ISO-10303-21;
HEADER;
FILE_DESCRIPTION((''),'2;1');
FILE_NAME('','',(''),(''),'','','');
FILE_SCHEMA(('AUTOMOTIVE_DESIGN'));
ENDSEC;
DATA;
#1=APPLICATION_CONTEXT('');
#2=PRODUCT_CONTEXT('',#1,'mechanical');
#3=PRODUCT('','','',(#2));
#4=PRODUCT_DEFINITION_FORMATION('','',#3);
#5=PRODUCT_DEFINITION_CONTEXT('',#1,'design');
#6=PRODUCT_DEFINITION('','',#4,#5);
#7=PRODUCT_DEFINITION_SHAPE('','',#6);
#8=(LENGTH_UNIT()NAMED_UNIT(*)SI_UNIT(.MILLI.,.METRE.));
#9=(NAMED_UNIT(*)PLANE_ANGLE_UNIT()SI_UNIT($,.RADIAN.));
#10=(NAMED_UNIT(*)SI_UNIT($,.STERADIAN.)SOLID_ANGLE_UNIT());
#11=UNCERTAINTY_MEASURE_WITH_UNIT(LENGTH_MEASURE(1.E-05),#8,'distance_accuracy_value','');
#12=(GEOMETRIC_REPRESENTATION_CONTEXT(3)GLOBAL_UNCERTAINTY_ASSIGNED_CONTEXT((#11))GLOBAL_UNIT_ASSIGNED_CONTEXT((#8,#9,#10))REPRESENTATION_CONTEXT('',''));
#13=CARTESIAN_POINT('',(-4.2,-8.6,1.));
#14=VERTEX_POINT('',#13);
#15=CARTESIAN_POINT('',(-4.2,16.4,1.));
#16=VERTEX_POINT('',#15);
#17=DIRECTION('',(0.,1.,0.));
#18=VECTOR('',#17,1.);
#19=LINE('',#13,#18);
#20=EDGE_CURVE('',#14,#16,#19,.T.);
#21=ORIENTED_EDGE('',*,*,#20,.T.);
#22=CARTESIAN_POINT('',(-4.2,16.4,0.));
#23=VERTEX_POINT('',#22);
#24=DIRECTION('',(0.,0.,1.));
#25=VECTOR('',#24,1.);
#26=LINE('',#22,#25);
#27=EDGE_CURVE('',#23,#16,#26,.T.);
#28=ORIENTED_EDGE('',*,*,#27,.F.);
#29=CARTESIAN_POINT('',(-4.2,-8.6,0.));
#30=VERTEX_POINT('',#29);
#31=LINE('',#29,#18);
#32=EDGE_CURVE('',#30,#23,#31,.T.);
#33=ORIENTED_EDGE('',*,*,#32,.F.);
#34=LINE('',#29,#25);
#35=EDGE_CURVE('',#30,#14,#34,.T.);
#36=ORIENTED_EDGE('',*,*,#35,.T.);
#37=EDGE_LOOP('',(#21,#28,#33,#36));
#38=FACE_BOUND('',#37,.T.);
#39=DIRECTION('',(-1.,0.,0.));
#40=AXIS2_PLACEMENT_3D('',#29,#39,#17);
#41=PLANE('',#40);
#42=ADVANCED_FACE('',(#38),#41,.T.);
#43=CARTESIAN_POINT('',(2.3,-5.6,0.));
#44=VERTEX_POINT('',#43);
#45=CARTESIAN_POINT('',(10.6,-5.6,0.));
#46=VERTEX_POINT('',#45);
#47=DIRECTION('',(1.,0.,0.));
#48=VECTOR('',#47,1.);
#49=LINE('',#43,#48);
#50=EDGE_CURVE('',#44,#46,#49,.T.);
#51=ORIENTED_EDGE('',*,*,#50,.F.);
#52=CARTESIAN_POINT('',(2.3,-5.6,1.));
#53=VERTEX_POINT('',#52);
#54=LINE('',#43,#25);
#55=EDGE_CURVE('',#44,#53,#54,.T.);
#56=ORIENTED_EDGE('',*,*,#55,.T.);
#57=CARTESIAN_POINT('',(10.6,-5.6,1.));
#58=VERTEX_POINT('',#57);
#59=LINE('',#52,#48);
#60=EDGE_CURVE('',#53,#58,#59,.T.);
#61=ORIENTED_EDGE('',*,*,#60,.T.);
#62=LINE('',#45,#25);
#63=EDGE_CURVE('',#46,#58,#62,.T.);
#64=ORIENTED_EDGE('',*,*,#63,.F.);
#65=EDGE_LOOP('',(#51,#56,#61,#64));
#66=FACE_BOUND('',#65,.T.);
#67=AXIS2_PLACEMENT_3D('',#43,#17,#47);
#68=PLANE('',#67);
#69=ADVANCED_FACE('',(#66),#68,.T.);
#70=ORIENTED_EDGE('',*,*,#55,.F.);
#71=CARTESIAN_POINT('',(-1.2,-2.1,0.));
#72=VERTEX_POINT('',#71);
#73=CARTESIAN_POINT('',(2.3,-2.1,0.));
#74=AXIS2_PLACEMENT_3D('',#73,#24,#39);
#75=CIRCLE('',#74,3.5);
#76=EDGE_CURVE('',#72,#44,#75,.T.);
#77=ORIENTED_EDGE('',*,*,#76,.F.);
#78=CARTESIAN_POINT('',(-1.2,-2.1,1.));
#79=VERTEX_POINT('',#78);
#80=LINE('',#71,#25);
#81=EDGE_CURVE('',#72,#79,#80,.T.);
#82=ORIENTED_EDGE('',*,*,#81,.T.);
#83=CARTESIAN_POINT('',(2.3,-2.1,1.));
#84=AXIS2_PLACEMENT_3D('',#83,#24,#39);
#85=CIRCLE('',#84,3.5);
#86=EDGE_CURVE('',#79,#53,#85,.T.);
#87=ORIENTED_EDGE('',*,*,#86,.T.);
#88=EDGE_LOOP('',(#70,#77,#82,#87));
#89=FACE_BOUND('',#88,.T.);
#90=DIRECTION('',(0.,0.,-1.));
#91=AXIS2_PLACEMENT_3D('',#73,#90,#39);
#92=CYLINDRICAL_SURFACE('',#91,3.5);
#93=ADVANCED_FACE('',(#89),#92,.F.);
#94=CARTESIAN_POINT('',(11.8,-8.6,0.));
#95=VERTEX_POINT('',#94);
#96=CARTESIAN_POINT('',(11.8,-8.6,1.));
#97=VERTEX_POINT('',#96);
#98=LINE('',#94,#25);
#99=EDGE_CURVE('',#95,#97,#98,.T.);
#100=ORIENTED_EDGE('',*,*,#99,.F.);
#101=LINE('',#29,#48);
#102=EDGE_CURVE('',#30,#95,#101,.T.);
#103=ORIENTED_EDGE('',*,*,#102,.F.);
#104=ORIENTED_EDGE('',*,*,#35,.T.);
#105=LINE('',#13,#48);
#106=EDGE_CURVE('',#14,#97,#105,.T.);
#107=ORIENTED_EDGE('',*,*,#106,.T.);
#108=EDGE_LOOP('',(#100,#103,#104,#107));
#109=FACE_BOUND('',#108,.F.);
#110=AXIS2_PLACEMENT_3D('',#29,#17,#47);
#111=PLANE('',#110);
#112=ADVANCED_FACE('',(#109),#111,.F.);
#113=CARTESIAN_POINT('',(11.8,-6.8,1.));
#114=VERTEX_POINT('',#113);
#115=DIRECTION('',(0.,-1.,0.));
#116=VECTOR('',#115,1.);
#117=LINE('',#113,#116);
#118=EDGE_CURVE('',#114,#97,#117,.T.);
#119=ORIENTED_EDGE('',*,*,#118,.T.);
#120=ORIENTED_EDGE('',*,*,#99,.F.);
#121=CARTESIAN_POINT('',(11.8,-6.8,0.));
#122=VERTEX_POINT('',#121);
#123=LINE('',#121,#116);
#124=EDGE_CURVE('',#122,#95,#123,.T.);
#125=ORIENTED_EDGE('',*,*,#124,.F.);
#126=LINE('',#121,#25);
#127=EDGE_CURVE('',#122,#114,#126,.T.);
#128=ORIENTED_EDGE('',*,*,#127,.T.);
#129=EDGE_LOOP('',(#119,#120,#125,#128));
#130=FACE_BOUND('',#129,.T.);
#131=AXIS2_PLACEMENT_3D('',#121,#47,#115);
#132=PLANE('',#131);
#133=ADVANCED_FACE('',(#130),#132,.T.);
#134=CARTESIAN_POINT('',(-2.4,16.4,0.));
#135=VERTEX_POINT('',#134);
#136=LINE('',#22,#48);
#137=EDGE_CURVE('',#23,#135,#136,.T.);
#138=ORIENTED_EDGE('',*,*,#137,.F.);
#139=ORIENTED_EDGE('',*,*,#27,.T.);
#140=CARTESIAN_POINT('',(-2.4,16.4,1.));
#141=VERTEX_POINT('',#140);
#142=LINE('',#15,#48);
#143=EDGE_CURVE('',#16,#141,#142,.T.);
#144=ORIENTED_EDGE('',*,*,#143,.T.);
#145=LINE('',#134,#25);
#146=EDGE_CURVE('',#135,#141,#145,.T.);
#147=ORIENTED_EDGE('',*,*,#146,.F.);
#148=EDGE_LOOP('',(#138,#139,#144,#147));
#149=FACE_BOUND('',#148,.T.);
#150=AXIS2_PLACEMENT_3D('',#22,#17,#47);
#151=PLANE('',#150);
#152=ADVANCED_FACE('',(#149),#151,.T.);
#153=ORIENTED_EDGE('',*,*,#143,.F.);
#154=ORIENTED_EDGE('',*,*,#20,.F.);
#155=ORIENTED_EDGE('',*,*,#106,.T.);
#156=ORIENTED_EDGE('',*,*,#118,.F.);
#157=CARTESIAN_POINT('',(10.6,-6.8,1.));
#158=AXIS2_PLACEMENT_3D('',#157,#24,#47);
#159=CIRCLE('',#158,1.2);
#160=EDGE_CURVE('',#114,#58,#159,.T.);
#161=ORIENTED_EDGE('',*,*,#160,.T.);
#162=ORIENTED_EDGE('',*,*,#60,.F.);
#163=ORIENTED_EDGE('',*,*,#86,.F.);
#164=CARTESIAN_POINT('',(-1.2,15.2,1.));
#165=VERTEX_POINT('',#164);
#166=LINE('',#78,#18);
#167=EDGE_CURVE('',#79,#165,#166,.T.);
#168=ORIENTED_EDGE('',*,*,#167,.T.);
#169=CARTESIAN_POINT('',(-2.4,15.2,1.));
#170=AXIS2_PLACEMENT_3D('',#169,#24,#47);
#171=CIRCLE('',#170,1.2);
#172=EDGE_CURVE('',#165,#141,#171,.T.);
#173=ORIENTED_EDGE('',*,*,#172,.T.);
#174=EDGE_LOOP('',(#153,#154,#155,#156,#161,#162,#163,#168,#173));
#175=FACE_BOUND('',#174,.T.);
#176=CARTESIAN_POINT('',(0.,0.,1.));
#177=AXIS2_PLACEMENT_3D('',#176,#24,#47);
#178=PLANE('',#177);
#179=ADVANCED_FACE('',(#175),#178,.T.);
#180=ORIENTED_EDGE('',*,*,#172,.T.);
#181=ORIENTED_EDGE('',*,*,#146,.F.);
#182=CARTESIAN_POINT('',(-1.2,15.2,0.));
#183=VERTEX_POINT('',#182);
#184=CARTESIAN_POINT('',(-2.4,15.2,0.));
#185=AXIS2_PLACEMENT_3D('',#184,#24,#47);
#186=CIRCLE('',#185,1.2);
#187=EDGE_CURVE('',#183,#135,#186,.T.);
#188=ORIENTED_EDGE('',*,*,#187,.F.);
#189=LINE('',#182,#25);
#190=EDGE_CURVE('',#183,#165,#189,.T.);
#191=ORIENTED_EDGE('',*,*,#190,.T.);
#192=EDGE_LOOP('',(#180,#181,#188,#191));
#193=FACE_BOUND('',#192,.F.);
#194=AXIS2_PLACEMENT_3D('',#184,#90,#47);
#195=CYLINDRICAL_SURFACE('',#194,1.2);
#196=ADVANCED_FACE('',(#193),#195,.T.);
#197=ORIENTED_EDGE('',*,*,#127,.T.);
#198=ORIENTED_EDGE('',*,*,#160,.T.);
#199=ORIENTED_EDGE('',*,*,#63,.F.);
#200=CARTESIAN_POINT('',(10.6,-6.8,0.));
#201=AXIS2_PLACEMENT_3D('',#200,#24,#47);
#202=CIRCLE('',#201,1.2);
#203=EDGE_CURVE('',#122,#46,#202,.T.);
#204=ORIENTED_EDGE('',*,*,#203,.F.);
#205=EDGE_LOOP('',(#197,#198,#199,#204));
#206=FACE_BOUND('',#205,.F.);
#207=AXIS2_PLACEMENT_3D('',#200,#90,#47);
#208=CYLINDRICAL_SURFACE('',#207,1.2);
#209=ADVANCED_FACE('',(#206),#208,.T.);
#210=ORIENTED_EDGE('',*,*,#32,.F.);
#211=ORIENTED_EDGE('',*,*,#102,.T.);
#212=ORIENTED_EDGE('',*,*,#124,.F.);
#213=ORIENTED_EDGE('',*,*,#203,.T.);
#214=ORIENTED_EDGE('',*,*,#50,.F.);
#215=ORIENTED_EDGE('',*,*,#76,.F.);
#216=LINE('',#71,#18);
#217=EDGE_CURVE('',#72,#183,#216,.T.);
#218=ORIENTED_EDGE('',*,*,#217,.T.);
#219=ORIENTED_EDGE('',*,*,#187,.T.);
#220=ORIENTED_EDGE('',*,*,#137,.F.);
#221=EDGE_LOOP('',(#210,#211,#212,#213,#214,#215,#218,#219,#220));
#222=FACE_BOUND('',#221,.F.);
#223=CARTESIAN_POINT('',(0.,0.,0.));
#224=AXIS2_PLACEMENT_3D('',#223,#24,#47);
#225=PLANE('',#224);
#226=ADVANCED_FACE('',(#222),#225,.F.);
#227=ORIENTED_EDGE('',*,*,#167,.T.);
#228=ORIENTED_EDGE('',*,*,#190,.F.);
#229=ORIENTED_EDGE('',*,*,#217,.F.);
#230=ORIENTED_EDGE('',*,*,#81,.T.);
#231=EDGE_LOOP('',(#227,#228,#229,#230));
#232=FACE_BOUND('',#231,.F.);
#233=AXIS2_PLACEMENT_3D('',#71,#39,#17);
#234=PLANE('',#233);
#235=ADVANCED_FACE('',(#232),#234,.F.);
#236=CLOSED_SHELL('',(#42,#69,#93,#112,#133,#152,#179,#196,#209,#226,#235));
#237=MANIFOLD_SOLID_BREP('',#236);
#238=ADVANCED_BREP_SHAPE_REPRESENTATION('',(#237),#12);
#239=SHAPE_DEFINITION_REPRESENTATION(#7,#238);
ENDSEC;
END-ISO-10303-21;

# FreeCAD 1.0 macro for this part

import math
import FreeCAD as App
import Part
import Sketcher
from FreeCAD import Vector

doc = App.newDocument("Part")
params = doc.addObject("Spreadsheet::Sheet", "Params")
for row, (alias, value) in enumerate([
    ("sketch1_radius", "3.5 mm"),
    ("sketch1_radius2", "1.2 mm"),
    ("sketch1_width", "16 mm"),
    ("sketch1_height", "25 mm"),
    ("pad1_length", "1 mm"),
], start=1):
    params.set(f"A{row}", alias)
    params.set(f"B{row}", "=" + value)
    params.setAlias(f"B{row}", alias)

body = doc.addObject("PartDesign::Body", "Body")

sketch1 = body.newObject("Sketcher::SketchObject", "Sketch")
sketch1.AttachmentSupport = (doc.getObject("XY_Plane"), [""])
sketch1.MapMode = "FlatFace"
sketch1.addGeometry([
    Part.ArcOfCircle(Part.Circle(Vector(2.3, -2.1, 0), Vector(0, 0, 1), 3.5), math.radians(180), math.radians(270)),
    Part.LineSegment(Vector(-1.2, -2.1, 0), Vector(-1.2, 15.2, 0)),
    Part.ArcOfCircle(Part.Circle(Vector(-2.4, 15.2, 0), Vector(0, 0, 1), 1.2), math.radians(0), math.radians(90)),
    Part.LineSegment(Vector(-2.4, 16.4, 0), Vector(-4.2, 16.4, 0)),
    Part.LineSegment(Vector(-4.2, 16.4, 0), Vector(-4.2, -8.6, 0)),
    Part.LineSegment(Vector(-4.2, -8.6, 0), Vector(11.8, -8.6, 0)),
    Part.LineSegment(Vector(11.8, -8.6, 0), Vector(11.8, -6.8, 0)),
    Part.ArcOfCircle(Part.Circle(Vector(10.6, -6.8, 0), Vector(0, 0, 1), 1.2), math.radians(0), math.radians(90)),
    Part.LineSegment(Vector(10.6, -5.6, 0), Vector(2.3, -5.6, 0)),
], False)
sketch1.addConstraint([
    Sketcher.Constraint("Tangent", 0, 1, 1, 1),
    Sketcher.Constraint("Tangent", 1, 2, 2, 1),
    Sketcher.Constraint("Tangent", 2, 2, 3, 1),
    Sketcher.Constraint("Coincident", 3, 2, 4, 1),
    Sketcher.Constraint("Coincident", 4, 2, 5, 1),
    Sketcher.Constraint("Coincident", 5, 2, 6, 1),
    Sketcher.Constraint("Tangent", 6, 2, 7, 1),
    Sketcher.Constraint("Tangent", 7, 2, 8, 1),
    Sketcher.Constraint("Tangent", 8, 2, 0, 2),
    Sketcher.Constraint("Vertical", 1),
    Sketcher.Constraint("Horizontal", 3),
    Sketcher.Constraint("Vertical", 4),
    Sketcher.Constraint("Horizontal", 5),
    Sketcher.Constraint("Vertical", 6),
    Sketcher.Constraint("Horizontal", 8),
    Sketcher.Constraint("Equal", 2, 7),
    Sketcher.Constraint("Equal", 3, 6),
    Sketcher.Constraint("Radius", 0, 3.5),
    Sketcher.Constraint("Radius", 2, 1.2),
    Sketcher.Constraint("DistanceX", 5, 1, 5, 2, 16.0),
    Sketcher.Constraint("DistanceY", 4, 2, 4, 1, 25.0),
    Sketcher.Constraint("DistanceX", 3, 2, 1, 2, 3.0),
    Sketcher.Constraint("DistanceX", 0, 1, -1, 1, 1.2),
    Sketcher.Constraint("DistanceY", 4, 2, -1, 1, 8.6),
])
sketch1.setExpression("Constraints[17]", "Params.sketch1_radius")
sketch1.setExpression("Constraints[18]", "Params.sketch1_radius2")
sketch1.setExpression("Constraints[19]", "Params.sketch1_width")
sketch1.setExpression("Constraints[20]", "Params.sketch1_height")
pad1 = body.newObject("PartDesign::Pad", "Pad")
pad1.Profile = sketch1
pad1.setExpression("Length", "Params.pad1_length")

doc.recompute()
